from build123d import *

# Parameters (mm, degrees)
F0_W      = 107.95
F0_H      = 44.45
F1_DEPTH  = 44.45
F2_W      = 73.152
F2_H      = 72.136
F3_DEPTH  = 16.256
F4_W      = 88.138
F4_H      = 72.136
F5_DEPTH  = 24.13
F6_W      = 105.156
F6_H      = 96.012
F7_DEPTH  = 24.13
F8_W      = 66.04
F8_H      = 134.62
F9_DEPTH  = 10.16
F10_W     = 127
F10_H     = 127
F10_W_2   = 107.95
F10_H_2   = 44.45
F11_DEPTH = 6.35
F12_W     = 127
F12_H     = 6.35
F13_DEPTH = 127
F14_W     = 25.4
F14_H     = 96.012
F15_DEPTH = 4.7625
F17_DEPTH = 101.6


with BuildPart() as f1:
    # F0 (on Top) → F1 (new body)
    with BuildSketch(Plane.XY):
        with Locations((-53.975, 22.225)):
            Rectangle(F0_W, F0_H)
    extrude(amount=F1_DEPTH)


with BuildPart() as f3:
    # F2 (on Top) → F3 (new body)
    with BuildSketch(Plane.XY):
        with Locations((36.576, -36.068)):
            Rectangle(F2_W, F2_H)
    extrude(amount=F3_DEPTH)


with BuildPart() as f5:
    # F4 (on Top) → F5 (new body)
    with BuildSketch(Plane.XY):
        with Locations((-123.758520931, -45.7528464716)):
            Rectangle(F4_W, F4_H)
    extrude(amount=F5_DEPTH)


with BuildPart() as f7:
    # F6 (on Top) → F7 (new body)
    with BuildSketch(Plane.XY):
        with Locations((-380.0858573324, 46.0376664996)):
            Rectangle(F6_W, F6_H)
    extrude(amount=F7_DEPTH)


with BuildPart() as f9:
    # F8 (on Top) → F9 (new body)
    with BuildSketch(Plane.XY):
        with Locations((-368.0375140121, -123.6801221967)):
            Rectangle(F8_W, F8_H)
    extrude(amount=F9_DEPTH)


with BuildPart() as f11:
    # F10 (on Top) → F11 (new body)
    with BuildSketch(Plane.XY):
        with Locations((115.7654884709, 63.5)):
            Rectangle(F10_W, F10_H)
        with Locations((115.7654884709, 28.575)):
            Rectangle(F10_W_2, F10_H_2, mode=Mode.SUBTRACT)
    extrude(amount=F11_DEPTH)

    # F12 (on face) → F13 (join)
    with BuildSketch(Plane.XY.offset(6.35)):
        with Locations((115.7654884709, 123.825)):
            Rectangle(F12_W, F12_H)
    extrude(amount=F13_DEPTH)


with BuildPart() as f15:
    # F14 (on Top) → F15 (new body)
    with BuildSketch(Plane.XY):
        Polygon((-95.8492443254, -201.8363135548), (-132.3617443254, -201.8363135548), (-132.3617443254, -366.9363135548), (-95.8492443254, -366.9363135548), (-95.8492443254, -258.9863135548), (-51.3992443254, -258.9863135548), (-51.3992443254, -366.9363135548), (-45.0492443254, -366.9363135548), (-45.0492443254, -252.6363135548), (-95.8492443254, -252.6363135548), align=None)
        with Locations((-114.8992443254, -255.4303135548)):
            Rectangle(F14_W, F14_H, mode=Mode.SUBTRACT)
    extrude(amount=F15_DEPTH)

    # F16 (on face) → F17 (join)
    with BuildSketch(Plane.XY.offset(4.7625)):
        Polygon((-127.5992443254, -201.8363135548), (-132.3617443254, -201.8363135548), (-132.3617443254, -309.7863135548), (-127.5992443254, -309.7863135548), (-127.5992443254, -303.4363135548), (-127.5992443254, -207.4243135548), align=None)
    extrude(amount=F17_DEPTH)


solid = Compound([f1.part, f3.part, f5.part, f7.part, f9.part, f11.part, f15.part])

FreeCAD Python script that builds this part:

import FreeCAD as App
import Part
import Sketcher
from FreeCAD import Vector
Q = App.Units.Quantity


def add_polygon(sketch, points):
    """Adds a closed chain of lines whose ends are joined by coincident constraints."""
    first, n = sketch.GeometryCount, len(points)
    for a, b in zip(points, points[1:] + points[:1]):
        sketch.addGeometry(Part.LineSegment(App.Vector(*a, 0), App.Vector(*b, 0)), False)
    for i in range(n):
        sketch.addConstraint(Sketcher.Constraint("Coincident", first + i, 2, first + (i + 1) % n, 1))

doc = App.newDocument("Part")
params = doc.addObject("Spreadsheet::Sheet", "Params")
for row, (alias, value) in enumerate([
    ("sketch1_width", "4.25 in"),
    ("sketch1_height", "1.75 in"),
    ("pad1_length", "1.75 in"),
    ("sketch2_width", "2.88 in"),
    ("sketch2_height", "2.84 in"),
    ("pad2_length", "0.64 in"),
    ("sketch3_width", "3.47 in"),
    ("sketch3_height", "2.84 in"),
    ("pad3_length", "0.95 in"),
    ("sketch4_width", "4.14 in"),
    ("sketch4_height", "3.78 in"),
    ("pad4_length", "0.95 in"),
    ("sketch5_width", "2.6 in"),
    ("sketch5_height", "5.3 in"),
    ("pad5_length", "0.4 in"),
    ("sketch6_width", "5 in"),
    ("sketch6_width2", "4.25 in"),
    ("sketch6_height", "1.75 in"),
    ("pad6_length", "0.25 in"),
    ("sketch7_width", "5 in"),
    ("sketch7_height", "0.25 in"),
    ("pad7_length", "5 in"),
    ("sketch8_width", "2 in"),
    ("sketch8_width2", "1 in"),
    ("sketch8_height", "6.5 in"),
    ("sketch8_width3", "1.75 in"),
    ("sketch8_height2", "4.25 in"),
    ("pad8_length", "0.1875 in"),
    ("sketch9_height", "4.25 in"),
    ("sketch9_width", "0.1875 in"),
    ("pad9_length", "4 in"),
], start=1):
    params.set(f"A{row}", alias)
    params.set(f"B{row}", "=" + value)
    params.setAlias(f"B{row}", alias)

body = doc.addObject("PartDesign::Body", "Body")

sketch1 = body.newObject("Sketcher::SketchObject", "Sketch")
sketch1.AttachmentSupport = (doc.getObject("XY_Plane"), [""])
sketch1.MapMode = "FlatFace"
add_polygon(sketch1, [(-108, 44), (-108, 0), (0, 0), (0, 44)])
sketch1.addConstraint([
    Sketcher.Constraint("Vertical", 0),
    Sketcher.Constraint("Horizontal", 1),
    Sketcher.Constraint("Vertical", 2),
    Sketcher.Constraint("Horizontal", 3),
    Sketcher.Constraint("Coincident", 1, 2, -1, 1),
    Sketcher.Constraint("DistanceX", 1, 1, 1, 2, Q("4.25 in")),
    Sketcher.Constraint("DistanceY", 0, 2, 0, 1, Q("1.75 in")),
])
sketch1.setExpression("Constraints[9]", "Params.sketch1_width")
sketch1.setExpression("Constraints[10]", "Params.sketch1_height")
pad1 = body.newObject("PartDesign::Pad", "Pad")
pad1.Profile = sketch1
pad1.setExpression("Length", "Params.pad1_length")
body2 = doc.addObject("PartDesign::Body", "Body001")

sketch2 = body2.newObject("Sketcher::SketchObject", "Sketch001")
sketch2.AttachmentSupport = (doc.getObject("XY_Plane001"), [""])
sketch2.MapMode = "FlatFace"
add_polygon(sketch2, [(0, 0), (0, -72), (73, -72), (73, 0)])
sketch2.addConstraint([
    Sketcher.Constraint("Vertical", 0),
    Sketcher.Constraint("Horizontal", 1),
    Sketcher.Constraint("Vertical", 2),
    Sketcher.Constraint("Horizontal", 3),
    Sketcher.Constraint("Coincident", 3, 2, -1, 1),
    Sketcher.Constraint("DistanceX", 1, 1, 1, 2, Q("2.88 in")),
    Sketcher.Constraint("DistanceY", 0, 2, 0, 1, Q("2.84 in")),
])
sketch2.setExpression("Constraints[9]", "Params.sketch2_width")
sketch2.setExpression("Constraints[10]", "Params.sketch2_height")
pad2 = body2.newObject("PartDesign::Pad", "Pad001")
pad2.Profile = sketch2
pad2.setExpression("Length", "Params.pad2_length")
body3 = doc.addObject("PartDesign::Body", "Body002")

sketch3 = body3.newObject("Sketcher::SketchObject", "Sketch002")
sketch3.AttachmentSupport = (doc.getObject("XY_Plane002"), [""])
sketch3.MapMode = "FlatFace"
add_polygon(sketch3, [(-168, -10), (-168, -82), (-80, -82), (-80, -10)])
sketch3.addConstraint([
    Sketcher.Constraint("Vertical", 0),
    Sketcher.Constraint("Horizontal", 1),
    Sketcher.Constraint("Vertical", 2),
    Sketcher.Constraint("Horizontal", 3),
    Sketcher.Constraint("DistanceX", 1, 1, 1, 2, Q("3.47 in")),
    Sketcher.Constraint("DistanceY", 0, 2, 0, 1, Q("2.84 in")),
    Sketcher.Constraint("DistanceX", 0, 2, -1, 1, Q("167.827521 mm")),
    Sketcher.Constraint("DistanceY", 0, 2, -1, 1, Q("81.820846 mm")),
])
sketch3.setExpression("Constraints[8]", "Params.sketch3_width")
sketch3.setExpression("Constraints[9]", "Params.sketch3_height")
pad3 = body3.newObject("PartDesign::Pad", "Pad002")
pad3.Profile = sketch3
pad3.setExpression("Length", "Params.pad3_length")
body4 = doc.addObject("PartDesign::Body", "Body003")

sketch4 = body4.newObject("Sketcher::SketchObject", "Sketch003")
sketch4.AttachmentSupport = (doc.getObject("XY_Plane003"), [""])
sketch4.MapMode = "FlatFace"
add_polygon(sketch4, [(-433, 94), (-433, -2), (-328, -2), (-328, 94)])
sketch4.addConstraint([
    Sketcher.Constraint("Vertical", 0),
    Sketcher.Constraint("Horizontal", 1),
    Sketcher.Constraint("Vertical", 2),
    Sketcher.Constraint("Horizontal", 3),
    Sketcher.Constraint("DistanceX", 1, 1, 1, 2, Q("4.14 in")),
    Sketcher.Constraint("DistanceY", 0, 2, 0, 1, Q("3.78 in")),
    Sketcher.Constraint("DistanceX", 0, 2, -1, 1, Q("432.663857 mm")),
    Sketcher.Constraint("DistanceY", 0, 2, -1, 1, Q("1.968333 mm")),
])
sketch4.setExpression("Constraints[8]", "Params.sketch4_width")
sketch4.setExpression("Constraints[9]", "Params.sketch4_height")
pad4 = body4.newObject("PartDesign::Pad", "Pad003")
pad4.Profile = sketch4
pad4.setExpression("Length", "Params.pad4_length")
body5 = doc.addObject("PartDesign::Body", "Body004")

sketch5 = body5.newObject("Sketcher::SketchObject", "Sketch004")
sketch5.AttachmentSupport = (doc.getObject("XY_Plane004"), [""])
sketch5.MapMode = "FlatFace"
add_polygon(sketch5, [(-401, -56), (-401, -191), (-335, -191), (-335, -56)])
sketch5.addConstraint([
    Sketcher.Constraint("Vertical", 0),
    Sketcher.Constraint("Horizontal", 1),
    Sketcher.Constraint("Vertical", 2),
    Sketcher.Constraint("Horizontal", 3),
    Sketcher.Constraint("DistanceX", 1, 1, 1, 2, Q("2.6 in")),
    Sketcher.Constraint("DistanceY", 0, 2, 0, 1, Q("5.3 in")),
    Sketcher.Constraint("DistanceX", 0, 2, -1, 1, Q("401.057514 mm")),
    Sketcher.Constraint("DistanceY", 0, 2, -1, 1, Q("190.990122 mm")),
])
sketch5.setExpression("Constraints[8]", "Params.sketch5_width")
sketch5.setExpression("Constraints[9]", "Params.sketch5_height")
pad5 = body5.newObject("PartDesign::Pad", "Pad004")
pad5.Profile = sketch5
pad5.setExpression("Length", "Params.pad5_length")
body6 = doc.addObject("PartDesign::Body", "Body005")

sketch6 = body6.newObject("Sketcher::SketchObject", "Sketch005")
sketch6.AttachmentSupport = (doc.getObject("XY_Plane005"), [""])
sketch6.MapMode = "FlatFace"
add_polygon(sketch6, [(52, 127), (52, 0), (179, 0), (179, 127)])
add_polygon(sketch6, [(170, 6), (62, 6), (62, 51), (170, 51)])
sketch6.addConstraint([
    Sketcher.Constraint("Vertical", 0),
    Sketcher.Constraint("Horizontal", 1),
    Sketcher.Constraint("Vertical", 2),
    Sketcher.Constraint("Horizontal", 3),
    Sketcher.Constraint("Horizontal", 4),
    Sketcher.Constraint("Vertical", 5),
    Sketcher.Constraint("Horizontal", 6),
    Sketcher.Constraint("Vertical", 7),
    Sketcher.Constraint("PointOnObject", 0, 2, -1),
    Sketcher.Constraint("Equal", 3, 0),
    Sketcher.Constraint("DistanceX", 1, 1, 1, 2, Q("5 in")),
    Sketcher.Constraint("DistanceY", -1, 1, 5, 2, Q("2 in")),
    Sketcher.Constraint("DistanceX", 4, 2, 4, 1, Q("4.25 in")),
    Sketcher.Constraint("DistanceY", 5, 1, 5, 2, Q("1.75 in")),
    Sketcher.Constraint("DistanceX", 0, 2, 4, 2, Q("0.375 in")),
    Sketcher.Constraint("DistanceX", -1, 1, 0, 2, Q("52.265488 mm")),
])
sketch6.setExpression("Constraints[18]", "Params.sketch6_width")
sketch6.setExpression("Constraints[20]", "Params.sketch6_width2")
sketch6.setExpression("Constraints[21]", "Params.sketch6_height")
pad6 = body6.newObject("PartDesign::Pad", "Pad005")
pad6.Profile = sketch6
pad6.setExpression("Length", "Params.pad6_length")

sketch7 = body6.newObject("Sketcher::SketchObject", "Sketch006")
sketch7.AttachmentSupport = (doc.getObject("XY_Plane005"), [""])
sketch7.MapMode = "FlatFace"
sketch7.AttachmentOffset = App.Placement(Vector(0, 0, 0.25 * 25.4), App.Rotation())
add_polygon(sketch7, [(52, 127), (52, 121), (179, 121), (179, 127)])
sketch7.addConstraint([
    Sketcher.Constraint("Vertical", 0),
    Sketcher.Constraint("Horizontal", 1),
    Sketcher.Constraint("Vertical", 2),
    Sketcher.Constraint("Horizontal", 3),
    Sketcher.Constraint("DistanceX", 1, 1, 1, 2, Q("5 in")),
    Sketcher.Constraint("DistanceY", -1, 1, 2, 2, Q("5 in")),
    Sketcher.Constraint("DistanceY", 0, 2, 0, 1, Q("0.25 in")),
    Sketcher.Constraint("DistanceX", -1, 1, 0, 2, Q("52.265488 mm")),
])
sketch7.setExpression("Constraints[8]", "Params.sketch7_width")
sketch7.setExpression("Constraints[10]", "Params.sketch7_height")
pad7 = body6.newObject("PartDesign::Pad", "Pad006")
pad7.Profile = sketch7
pad7.setExpression("Length", "Params.pad7_length")
body7 = doc.addObject("PartDesign::Body", "Body006")

sketch8 = body7.newObject("Sketcher::SketchObject", "Sketch007")
sketch8.AttachmentSupport = (doc.getObject("XY_Plane006"), [""])
sketch8.MapMode = "FlatFace"
add_polygon(sketch8, [(-96, -202), (-132, -202), (-132, -367), (-96, -367), (-96, -259), (-51, -259), (-51, -367), (-45, -367), (-45, -253), (-96, -253)])
add_polygon(sketch8, [(-102, -303), (-128, -303), (-128, -207), (-102, -207)])
sketch8.addConstraint([
    Sketcher.Constraint("Horizontal", 0),
    Sketcher.Constraint("Vertical", 1),
    Sketcher.Constraint("Horizontal", 2),
    Sketcher.Constraint("Vertical", 3),
    Sketcher.Constraint("Horizontal", 4),
    Sketcher.Constraint("Vertical", 5),
    Sketcher.Constraint("Horizontal", 6),
    Sketcher.Constraint("Vertical", 7),
    Sketcher.Constraint("Horizontal", 8),
    Sketcher.Constraint("Vertical", 9),
    Sketcher.Constraint("Horizontal", 10),
    Sketcher.Constraint("Vertical", 11),
    Sketcher.Constraint("Horizontal", 12),
    Sketcher.Constraint("Vertical", 13),
    Sketcher.Constraint("Horizontal", 2, 2, 5, 2),
    Sketcher.Constraint("Vertical", 3, 2, 8, 2),
    Sketcher.Constraint("Equal", 8, 9),
    Sketcher.Constraint("DistanceX", 8, 2, 8, 1, Q("2 in")),
    Sketcher.Constraint("DistanceX", 10, 2, 10, 1, Q("1 in")),
    Sketcher.Constraint("DistanceY", 1, 2, 1, 1, Q("6.5 in")),
    Sketcher.Constraint("DistanceY", 10, 2, 8, 2, Q("2 in")),
    Sketcher.Constraint("DistanceX", 10, 2, 4, 2, Q("3 in")),
    Sketcher.Constraint("DistanceX", 4, 1, 4, 2, Q("1.75 in")),
    Sketcher.Constraint("DistanceY", 3, 1, 3, 2, Q("4.25 in")),
    Sketcher.Constraint("DistanceY", 11, 1, 11, 2, Q("3.78 in")),
    Sketcher.Constraint("DistanceX", 0, 2, 0, 1, Q("1.4375 in")),
    Sketcher.Constraint("DistanceX", 0, 2, -1, 1, Q("132.361744 mm")),
    Sketcher.Constraint("DistanceY", 0, 2, -1, 1, Q("201.836314 mm")),
])
sketch8.setExpression("Constraints[31]", "Params.sketch8_width")
sketch8.setExpression("Constraints[32]", "Params.sketch8_width2")
sketch8.setExpression("Constraints[33]", "Params.sketch8_height")
sketch8.setExpression("Constraints[36]", "Params.sketch8_width3")
sketch8.setExpression("Constraints[37]", "Params.sketch8_height2")
pad8 = body7.newObject("PartDesign::Pad", "Pad007")
pad8.Profile = sketch8
pad8.setExpression("Length", "Params.pad8_length")

sketch9 = body7.newObject("Sketcher::SketchObject", "Sketch008")
sketch9.AttachmentSupport = (doc.getObject("XY_Plane006"), [""])
sketch9.MapMode = "FlatFace"
sketch9.AttachmentOffset = App.Placement(Vector(0, 0, 0.1875 * 25.4), App.Rotation())
add_polygon(sketch9, [(-127.6, -201.8), (-132.4, -201.8), (-132.4, -309.8), (-127.6, -309.8)])
sketch9.addConstraint([
    Sketcher.Constraint("Horizontal", 0),
    Sketcher.Constraint("Vertical", 1),
    Sketcher.Constraint("Horizontal", 2),
    Sketcher.Constraint("Vertical", 3),
    Sketcher.Constraint("DistanceY", 1, 2, 1, 1, Q("4.25 in")),
    Sketcher.Constraint("DistanceX", 0, 2, 0, 1, Q("0.1875 in")),
    Sketcher.Constraint("DistanceX", 0, 2, -1, 1, Q("132.361744 mm")),
    Sketcher.Constraint("DistanceY", 0, 2, -1, 1, Q("201.836314 mm")),
])
sketch9.setExpression("Constraints[8]", "Params.sketch9_height")
sketch9.setExpression("Constraints[9]", "Params.sketch9_width")
pad9 = body7.newObject("PartDesign::Pad", "Pad008")
pad9.Profile = sketch9
pad9.setExpression("Length", "Params.pad9_length")

doc.recompute()
